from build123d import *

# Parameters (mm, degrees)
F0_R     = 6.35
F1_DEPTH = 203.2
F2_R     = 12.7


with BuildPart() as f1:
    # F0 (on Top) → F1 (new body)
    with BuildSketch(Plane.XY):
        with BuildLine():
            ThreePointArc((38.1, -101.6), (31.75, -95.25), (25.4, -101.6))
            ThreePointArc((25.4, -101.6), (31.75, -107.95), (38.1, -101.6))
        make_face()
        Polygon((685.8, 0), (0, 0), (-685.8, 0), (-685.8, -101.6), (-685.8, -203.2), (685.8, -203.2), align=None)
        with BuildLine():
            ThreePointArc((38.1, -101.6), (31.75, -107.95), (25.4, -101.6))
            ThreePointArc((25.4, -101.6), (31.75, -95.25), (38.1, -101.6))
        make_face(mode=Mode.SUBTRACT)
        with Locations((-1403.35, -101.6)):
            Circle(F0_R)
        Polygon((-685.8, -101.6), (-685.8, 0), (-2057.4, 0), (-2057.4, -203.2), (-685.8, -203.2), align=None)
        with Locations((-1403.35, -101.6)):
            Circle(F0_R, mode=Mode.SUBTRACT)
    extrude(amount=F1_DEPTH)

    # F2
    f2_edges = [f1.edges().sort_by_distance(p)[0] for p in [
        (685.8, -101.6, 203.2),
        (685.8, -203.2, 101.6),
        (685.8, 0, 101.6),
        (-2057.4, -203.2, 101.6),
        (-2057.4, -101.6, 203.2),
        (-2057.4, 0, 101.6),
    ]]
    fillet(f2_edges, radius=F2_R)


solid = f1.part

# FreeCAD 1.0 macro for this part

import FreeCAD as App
import Part
import Sketcher

V = App.Vector
Q = App.Units.Quantity


def edges_at(feature, points):
    """Names of the edges that pass closest to the given points."""
    edges = feature.Shape.Edges
    near = lambda p: min(range(len(edges)), key=lambda i: edges[i].distToShape(Part.Vertex(*p))[0])
    return sorted({f"Edge{near(p) + 1}" for p in points})

doc = App.newDocument("Part")
body = doc.addObject("PartDesign::Body", "Body")

# Sketch on XY plane
sketch1 = body.newObject("Sketcher::SketchObject", "Sketch")
sketch1.AttachmentSupport = (doc.getObject("XY_Plane"), [""])
sketch1.MapMode = "FlatFace"
sketch1.addGeometry([
    Part.LineSegment(V(685.8, 0, 0), V(-2057.4, 0, 0)),  # 0
    Part.LineSegment(V(-2057.4, 0, 0), V(-2057.4, -203.2, 0)),  # 1
    Part.LineSegment(V(-2057.4, -203.2, 0), V(685.8, -203.2, 0)),  # 2
    Part.LineSegment(V(685.8, -203.2, 0), V(685.8, 0, 0)),  # 3
    Part.Circle(V(-1403.35, -101.6, 0), V(0, 0, 1), 6.35),  # 4
    Part.Circle(V(31.75, -101.6, 0), V(0, 0, 1), 6.35),  # 5
], False)
sketch1.addConstraint([
    Sketcher.Constraint("Coincident", 0, 2, 1, 1),
    Sketcher.Constraint("Coincident", 1, 2, 2, 1),
    Sketcher.Constraint("Coincident", 2, 2, 3, 1),
    Sketcher.Constraint("Coincident", 3, 2, 0, 1),
    Sketcher.Constraint("Horizontal", 0),
    Sketcher.Constraint("Vertical", 1),
    Sketcher.Constraint("Horizontal", 2),
    Sketcher.Constraint("Vertical", 3),
    Sketcher.Constraint("Equal", 4, 5),
    Sketcher.Constraint("PointOnObject", 0, 2, -1),
    Sketcher.Constraint("Horizontal", 4, 3, 5, 3),
    Sketcher.Constraint("Diameter", 4, Q("0.5 in")),
    Sketcher.Constraint("DistanceX", 0, 2, 0, 1, Q("108 in")),
    Sketcher.Constraint("DistanceY", 1, 2, 1, 1, Q("8 in")),
    Sketcher.Constraint("DistanceY", 4, 3, -1, 1, Q("4 in")),
    Sketcher.Constraint("DistanceX", 0, 2, -1, 1, Q("81 in")),
    Sketcher.Constraint("DistanceX", 4, 3, 5, 3, Q("56.5 in")),
    Sketcher.Constraint("DistanceX", 4, 3, -1, 1, Q("55.25 in")),
])
pad1 = body.newObject("PartDesign::Pad", "Pad")
pad1.Profile = sketch1
pad1.Length = Q("8 in")
doc.recompute()

fillet = body.newObject("PartDesign::Fillet", "Fillet")
fillet.Base = (pad1, edges_at(pad1, [
    (685.8, -101.6, 203.2),
    (685.8, -203.2, 101.6),
    (685.8, 0, 101.6),
    (-2057.4, -203.2, 101.6),
    (-2057.4, -101.6, 203.2),
    (-2057.4, 0, 101.6),
]))
fillet.Radius = Q("0.5 in")

doc.recompute()
